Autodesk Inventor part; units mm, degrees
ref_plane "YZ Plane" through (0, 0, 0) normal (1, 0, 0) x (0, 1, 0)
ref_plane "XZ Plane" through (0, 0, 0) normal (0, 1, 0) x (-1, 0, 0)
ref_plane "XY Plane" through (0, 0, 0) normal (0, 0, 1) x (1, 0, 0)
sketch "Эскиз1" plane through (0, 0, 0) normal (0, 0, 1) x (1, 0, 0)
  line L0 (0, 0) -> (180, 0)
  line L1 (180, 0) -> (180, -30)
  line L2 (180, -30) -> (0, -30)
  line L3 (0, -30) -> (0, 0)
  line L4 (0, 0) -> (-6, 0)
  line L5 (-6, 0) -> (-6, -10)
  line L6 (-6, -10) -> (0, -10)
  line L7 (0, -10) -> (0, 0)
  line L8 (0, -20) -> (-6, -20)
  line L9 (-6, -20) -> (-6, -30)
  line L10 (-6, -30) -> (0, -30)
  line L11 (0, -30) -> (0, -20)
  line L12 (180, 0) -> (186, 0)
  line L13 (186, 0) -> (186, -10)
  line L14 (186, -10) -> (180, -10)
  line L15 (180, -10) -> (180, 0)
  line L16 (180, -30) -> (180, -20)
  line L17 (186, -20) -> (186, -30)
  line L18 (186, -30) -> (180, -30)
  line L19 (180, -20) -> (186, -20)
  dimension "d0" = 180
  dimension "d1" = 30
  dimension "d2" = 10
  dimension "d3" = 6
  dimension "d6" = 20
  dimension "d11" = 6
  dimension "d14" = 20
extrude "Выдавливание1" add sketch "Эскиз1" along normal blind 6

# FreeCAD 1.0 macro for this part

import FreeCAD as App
import Part
import Sketcher

doc = App.newDocument("Part")
body = doc.addObject("PartDesign::Body", "Body")

# Sketch on XY plane
sketch1 = body.newObject("Sketcher::SketchObject", "Sketch")
sketch1.AttachmentSupport = (doc.getObject("XY_Plane"), [""])
sketch1.MapMode = "FlatFace"
sketch1.addGeometry(Part.LineSegment(App.Vector(-6, 0, 0), App.Vector(-6, -10, 0)), False)
sketch1.addGeometry(Part.LineSegment(App.Vector(-6, -10, 0), App.Vector(0, -10, 0)), False)
sketch1.addGeometry(Part.LineSegment(App.Vector(0, -10, 0), App.Vector(0, -20, 0)), False)
sketch1.addGeometry(Part.LineSegment(App.Vector(0, -20, 0), App.Vector(-6, -20, 0)), False)
sketch1.addGeometry(Part.LineSegment(App.Vector(-6, -20, 0), App.Vector(-6, -30, 0)), False)
sketch1.addGeometry(Part.LineSegment(App.Vector(-6, -30, 0), App.Vector(186, -30, 0)), False)
sketch1.addGeometry(Part.LineSegment(App.Vector(186, -30, 0), App.Vector(186, -20, 0)), False)
sketch1.addGeometry(Part.LineSegment(App.Vector(186, -20, 0), App.Vector(180, -20, 0)), False)
sketch1.addGeometry(Part.LineSegment(App.Vector(180, -20, 0), App.Vector(180, -10, 0)), False)
sketch1.addGeometry(Part.LineSegment(App.Vector(180, -10, 0), App.Vector(186, -10, 0)), False)
sketch1.addGeometry(Part.LineSegment(App.Vector(186, -10, 0), App.Vector(186, 0, 0)), False)
sketch1.addGeometry(Part.LineSegment(App.Vector(186, 0, 0), App.Vector(-6, 0, 0)), False)
sketch1.addConstraint(Sketcher.Constraint("Coincident", 0, 2, 1, 1))
sketch1.addConstraint(Sketcher.Constraint("Coincident", 1, 2, 2, 1))
sketch1.addConstraint(Sketcher.Constraint("Coincident", 2, 2, 3, 1))
sketch1.addConstraint(Sketcher.Constraint("Coincident", 3, 2, 4, 1))
sketch1.addConstraint(Sketcher.Constraint("Coincident", 4, 2, 5, 1))
sketch1.addConstraint(Sketcher.Constraint("Coincident", 5, 2, 6, 1))
sketch1.addConstraint(Sketcher.Constraint("Coincident", 6, 2, 7, 1))
sketch1.addConstraint(Sketcher.Constraint("Coincident", 7, 2, 8, 1))
sketch1.addConstraint(Sketcher.Constraint("Coincident", 8, 2, 9, 1))
sketch1.addConstraint(Sketcher.Constraint("Coincident", 9, 2, 10, 1))
sketch1.addConstraint(Sketcher.Constraint("Coincident", 10, 2, 11, 1))
sketch1.addConstraint(Sketcher.Constraint("Coincident", 11, 2, 0, 1))
sketch1.addConstraint(Sketcher.Constraint("Vertical", 0))
sketch1.addConstraint(Sketcher.Constraint("Horizontal", 1))
sketch1.addConstraint(Sketcher.Constraint("Vertical", 2))
sketch1.addConstraint(Sketcher.Constraint("Horizontal", 3))
sketch1.addConstraint(Sketcher.Constraint("Vertical", 4))
sketch1.addConstraint(Sketcher.Constraint("Horizontal", 5))
sketch1.addConstraint(Sketcher.Constraint("Vertical", 6))
sketch1.addConstraint(Sketcher.Constraint("Horizontal", 7))
sketch1.addConstraint(Sketcher.Constraint("Vertical", 8))
sketch1.addConstraint(Sketcher.Constraint("Horizontal", 9))
sketch1.addConstraint(Sketcher.Constraint("Vertical", 10))
sketch1.addConstraint(Sketcher.Constraint("Horizontal", 11))
sketch1.addConstraint(Sketcher.Constraint("PointOnObject", 1, 2, -2))
sketch1.addConstraint(Sketcher.Constraint("PointOnObject", 10, 2, -1))
sketch1.addConstraint(Sketcher.Constraint("Horizontal", 3, 2, 6, 2))
sketch1.addConstraint(Sketcher.Constraint("Horizontal", 1, 2, 8, 2))
sketch1.addConstraint(Sketcher.Constraint("Vertical", 0, 2, 3, 2))
sketch1.addConstraint(Sketcher.Constraint("Vertical", 6, 2, 9, 2))
sketch1.addConstraint(Sketcher.Constraint("Equal", 3, 7))
sketch1.addConstraint(Sketcher.Constraint("Equal", 0, 2))
sketch1.addConstraint(Sketcher.Constraint("Equal", 2, 4))
sketch1.addConstraint(Sketcher.Constraint("DistanceX", 1, 1, 1, 2, 6.0))
sketch1.addConstraint(Sketcher.Constraint("DistanceY", 0, 2, 0, 1, 10.0))
sketch1.addConstraint(Sketcher.Constraint("DistanceX", -1, 1, 7, 2, 180.0))
pad1 = body.newObject("PartDesign::Pad", "Pad")
pad1.Profile = sketch1
pad1.Length = 6

doc.recompute()
